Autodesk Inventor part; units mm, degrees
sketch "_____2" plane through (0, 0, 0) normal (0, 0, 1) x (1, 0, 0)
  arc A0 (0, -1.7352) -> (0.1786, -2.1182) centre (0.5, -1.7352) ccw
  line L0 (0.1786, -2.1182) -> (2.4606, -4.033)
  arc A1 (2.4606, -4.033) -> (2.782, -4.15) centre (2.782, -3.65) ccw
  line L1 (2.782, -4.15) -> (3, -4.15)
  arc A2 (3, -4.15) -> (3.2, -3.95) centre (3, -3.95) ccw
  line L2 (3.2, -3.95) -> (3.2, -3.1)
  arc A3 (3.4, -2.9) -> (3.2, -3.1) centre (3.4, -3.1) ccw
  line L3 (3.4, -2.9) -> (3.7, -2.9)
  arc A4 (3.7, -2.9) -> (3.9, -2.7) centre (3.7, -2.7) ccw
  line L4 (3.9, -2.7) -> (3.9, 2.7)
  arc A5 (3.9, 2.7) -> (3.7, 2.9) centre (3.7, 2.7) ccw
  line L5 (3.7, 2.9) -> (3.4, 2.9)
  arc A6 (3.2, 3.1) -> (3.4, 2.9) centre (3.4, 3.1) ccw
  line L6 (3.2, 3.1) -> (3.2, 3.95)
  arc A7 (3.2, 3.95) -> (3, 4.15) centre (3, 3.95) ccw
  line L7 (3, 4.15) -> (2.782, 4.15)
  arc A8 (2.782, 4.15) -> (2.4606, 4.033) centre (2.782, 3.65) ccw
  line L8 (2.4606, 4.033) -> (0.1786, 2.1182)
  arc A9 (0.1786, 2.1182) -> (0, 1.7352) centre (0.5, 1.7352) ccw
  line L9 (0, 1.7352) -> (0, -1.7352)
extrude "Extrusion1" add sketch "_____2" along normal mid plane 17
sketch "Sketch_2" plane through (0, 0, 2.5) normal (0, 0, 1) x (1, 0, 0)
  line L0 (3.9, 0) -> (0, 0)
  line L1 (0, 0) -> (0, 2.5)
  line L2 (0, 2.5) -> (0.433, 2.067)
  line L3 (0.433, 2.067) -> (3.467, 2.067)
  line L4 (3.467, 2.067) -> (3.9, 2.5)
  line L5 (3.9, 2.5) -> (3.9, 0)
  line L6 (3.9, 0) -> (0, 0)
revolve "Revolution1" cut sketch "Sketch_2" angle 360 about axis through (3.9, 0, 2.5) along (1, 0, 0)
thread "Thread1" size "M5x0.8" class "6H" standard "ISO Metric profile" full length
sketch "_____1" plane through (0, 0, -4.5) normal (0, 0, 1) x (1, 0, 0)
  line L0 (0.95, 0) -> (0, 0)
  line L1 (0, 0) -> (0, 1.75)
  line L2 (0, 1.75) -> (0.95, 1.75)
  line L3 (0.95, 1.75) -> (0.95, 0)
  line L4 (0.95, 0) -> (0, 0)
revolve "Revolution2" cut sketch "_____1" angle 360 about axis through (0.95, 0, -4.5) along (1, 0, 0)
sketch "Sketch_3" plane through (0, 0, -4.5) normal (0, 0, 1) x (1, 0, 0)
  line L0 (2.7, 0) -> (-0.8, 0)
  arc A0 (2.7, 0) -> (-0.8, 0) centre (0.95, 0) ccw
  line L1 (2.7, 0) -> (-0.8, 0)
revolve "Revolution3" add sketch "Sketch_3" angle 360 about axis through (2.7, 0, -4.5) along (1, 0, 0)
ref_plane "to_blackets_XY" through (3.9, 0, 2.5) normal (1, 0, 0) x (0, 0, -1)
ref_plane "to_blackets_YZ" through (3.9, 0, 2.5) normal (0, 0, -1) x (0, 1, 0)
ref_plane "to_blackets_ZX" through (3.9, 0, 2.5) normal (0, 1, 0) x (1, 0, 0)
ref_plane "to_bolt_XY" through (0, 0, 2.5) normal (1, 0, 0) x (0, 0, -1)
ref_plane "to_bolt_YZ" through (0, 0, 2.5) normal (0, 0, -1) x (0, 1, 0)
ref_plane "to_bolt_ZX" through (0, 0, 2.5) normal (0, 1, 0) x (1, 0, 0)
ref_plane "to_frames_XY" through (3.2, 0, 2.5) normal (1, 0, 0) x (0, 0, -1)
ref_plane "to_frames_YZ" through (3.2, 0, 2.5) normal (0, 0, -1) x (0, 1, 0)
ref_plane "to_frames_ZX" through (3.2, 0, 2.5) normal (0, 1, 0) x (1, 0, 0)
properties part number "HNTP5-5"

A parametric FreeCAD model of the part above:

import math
import FreeCAD as App
import Part
import Sketcher

V = App.Vector
Q = App.Units.Quantity

doc = App.newDocument("Part")
body = doc.addObject("PartDesign::Body", "Body")

sketch1 = body.newObject("Sketcher::SketchObject", "Sketch")
sketch1.AttachmentSupport = (doc.getObject("XY_Plane"), [""])
sketch1.MapMode = "FlatFace"
sketch1.addGeometry([
    Part.LineSegment(V(0, 1.7352, 0), V(0, -1.7352, 0)),
    Part.ArcOfCircle(Part.Circle(V(0.5, -1.7352, 0), V(0, 0, 1), 0.5), math.radians(180), math.radians(229.997819)),
    Part.LineSegment(V(0.1786, -2.1182, 0), V(2.4606, -4.033, 0)),
    Part.ArcOfCircle(Part.Circle(V(2.782, -3.65, 0), V(0, 0, 1), 0.499987), math.radians(-130.002181), math.radians(-90)),
    Part.LineSegment(V(2.782, -4.15, 0), V(3, -4.15, 0)),
    Part.ArcOfCircle(Part.Circle(V(3, -3.95, 0), V(0, 0, 1), 0.2), math.radians(-90), math.radians(0)),
    Part.LineSegment(V(3.2, -3.95, 0), V(3.2, -3.1, 0)),
    Part.ArcOfCircle(Part.Circle(V(3.4, -3.1, 0), V(0, 0, 1), 0.2), math.radians(90), math.radians(180)),
    Part.LineSegment(V(3.4, -2.9, 0), V(3.7, -2.9, 0)),
    Part.ArcOfCircle(Part.Circle(V(3.7, -2.7, 0), V(0, 0, 1), 0.2), math.radians(-90), math.radians(0)),
    Part.LineSegment(V(3.9, -2.7, 0), V(3.9, 2.7, 0)),
    Part.ArcOfCircle(Part.Circle(V(3.7, 2.7, 0), V(0, 0, 1), 0.2), math.radians(0), math.radians(90)),
    Part.LineSegment(V(3.7, 2.9, 0), V(3.4, 2.9, 0)),
    Part.ArcOfCircle(Part.Circle(V(3.4, 3.1, 0), V(0, 0, 1), 0.2), math.radians(180), math.radians(270)),
    Part.LineSegment(V(3.2, 3.1, 0), V(3.2, 3.95, 0)),
    Part.ArcOfCircle(Part.Circle(V(3, 3.95, 0), V(0, 0, 1), 0.2), math.radians(0), math.radians(90)),
    Part.LineSegment(V(3, 4.15, 0), V(2.782, 4.15, 0)),
    Part.ArcOfCircle(Part.Circle(V(2.782, 3.65, 0), V(0, 0, 1), 0.5), math.radians(90), math.radians(130.002181)),
    Part.LineSegment(V(2.4606, 4.033, 0), V(0.1786, 2.1182, 0)),
    Part.ArcOfCircle(Part.Circle(V(0.5, 1.7352, 0), V(0, 0, 1), 0.499987), math.radians(130.002181), math.radians(180)),
], False)
sketch1.addConstraint([
    Sketcher.Constraint("Tangent", 0, 2, 1, 1),
    Sketcher.Constraint("Tangent", 1, 2, 2, 1),
    Sketcher.Constraint("Tangent", 2, 2, 3, 1),
    Sketcher.Constraint("Tangent", 3, 2, 4, 1),
    Sketcher.Constraint("Tangent", 4, 2, 5, 1),
    Sketcher.Constraint("Tangent", 5, 2, 6, 1),
    Sketcher.Constraint("Tangent", 6, 2, 7, 2),
    Sketcher.Constraint("Tangent", 7, 1, 8, 1),
    Sketcher.Constraint("Tangent", 8, 2, 9, 1),
    Sketcher.Constraint("Tangent", 9, 2, 10, 1),
    Sketcher.Constraint("Tangent", 10, 2, 11, 1),
    Sketcher.Constraint("Tangent", 11, 2, 12, 1),
    Sketcher.Constraint("Tangent", 12, 2, 13, 2),
    Sketcher.Constraint("Tangent", 13, 1, 14, 1),
    Sketcher.Constraint("Tangent", 14, 2, 15, 1),
    Sketcher.Constraint("Tangent", 15, 2, 16, 1),
    Sketcher.Constraint("Tangent", 16, 2, 17, 1),
    Sketcher.Constraint("Tangent", 17, 2, 18, 1),
    Sketcher.Constraint("Tangent", 18, 2, 19, 1),
    Sketcher.Constraint("Tangent", 19, 2, 0, 1),
    Sketcher.Constraint("Vertical", 0),
    Sketcher.Constraint("Horizontal", 4),
    Sketcher.Constraint("Vertical", 6),
    Sketcher.Constraint("Horizontal", 8),
    Sketcher.Constraint("Vertical", 10),
    Sketcher.Constraint("Horizontal", 12),
    Sketcher.Constraint("Vertical", 14),
    Sketcher.Constraint("Horizontal", 16),
    Sketcher.Constraint("Equal", 1, 3),
    Sketcher.Constraint("Equal", 5, 7),
    Sketcher.Constraint("Equal", 7, 9),
    Sketcher.Constraint("Equal", 9, 11),
    Sketcher.Constraint("Equal", 11, 13),
    Sketcher.Constraint("Equal", 13, 15),
    Sketcher.Constraint("Equal", 3, 17),
    Sketcher.Constraint("Equal", 17, 19),
    Sketcher.Constraint("Symmetric", 0, 2, 19, 2, -1, 1),
    Sketcher.Constraint("Symmetric", 7, 3, 13, 3, -1),
    Sketcher.Constraint("Symmetric", 3, 3, 17, 3, -1),
    Sketcher.Constraint("Radius", 1, 0.5),
    Sketcher.Constraint("Radius", 5, 0.2),
    Sketcher.Constraint("Angle", 2, Q("-39.9996 deg")),
    Sketcher.Constraint("DistanceX", 8, 1, 8, 2, 0.3),
    Sketcher.Constraint("DistanceY", 10, 1, 10, 2, 5.4),
    Sketcher.Constraint("DistanceX", -1, 1, 5, 3, 3.0),
    Sketcher.Constraint("DistanceY", 6, 1, 6, 2, 0.85),
    Sketcher.Constraint("DistanceX", 4, 1, 4, 2, 0.218),
])
pad1 = body.newObject("PartDesign::Pad", "Pad")
pad1.Profile = sketch1
pad1.Length = 17
pad1.Midplane = True

sketch2 = body.newObject("Sketcher::SketchObject", "Sketch001")
sketch2.AttachmentSupport = (doc.getObject("XY_Plane"), [""])
sketch2.MapMode = "FlatFace"
sketch2.AttachmentOffset = App.Placement(V(0, 0, 2.5), App.Rotation())
sketch2.addGeometry([
    Part.LineSegment(V(0, 0, 0), V(3.9, 0, 0)),
    Part.LineSegment(V(3.9, 0, 0), V(3.9, 2.5, 0)),
    Part.LineSegment(V(3.9, 2.5, 0), V(3.467, 2.067, 0)),
    Part.LineSegment(V(3.467, 2.067, 0), V(0.433, 2.067, 0)),
    Part.LineSegment(V(0.433, 2.067, 0), V(0, 2.5, 0)),
    Part.LineSegment(V(0, 2.5, 0), V(0, 0, 0)),
], False)
sketch2.addConstraint([
    Sketcher.Constraint("Coincident", 0, 2, 1, 1),
    Sketcher.Constraint("Coincident", 1, 2, 2, 1),
    Sketcher.Constraint("Coincident", 2, 2, 3, 1),
    Sketcher.Constraint("Coincident", 3, 2, 4, 1),
    Sketcher.Constraint("Coincident", 4, 2, 5, 1),
    Sketcher.Constraint("Coincident", 5, 2, 0, 1),
    Sketcher.Constraint("Horizontal", 0),
    Sketcher.Constraint("Vertical", 1),
    Sketcher.Constraint("Horizontal", 3),
    Sketcher.Constraint("Vertical", 5),
    Sketcher.Constraint("Coincident", 5, 2, -1, 1),
    Sketcher.Constraint("Perpendicular", 2, 4),
    Sketcher.Constraint("Horizontal", 1, 2, 4, 2),
    Sketcher.Constraint("Equal", 2, 4),
    Sketcher.Constraint("DistanceX", 0, 1, 0, 2, 3.9),
    Sketcher.Constraint("DistanceY", 1, 1, 1, 2, 2.5),
    Sketcher.Constraint("DistanceX", 3, 2, 3, 1, 3.034),
])
groove = body.newObject("PartDesign::Groove", "Groove")
groove.Profile = sketch2
groove.ReferenceAxis = (sketch2, ["H_Axis"])
groove.Angle = 360

sketch3 = body.newObject("Sketcher::SketchObject", "Sketch002")
sketch3.AttachmentSupport = (doc.getObject("XY_Plane"), [""])
sketch3.MapMode = "FlatFace"
sketch3.AttachmentOffset = App.Placement(V(0, 0, -4.5), App.Rotation())
sketch3.addGeometry([
    Part.LineSegment(V(0, 0, 0), V(0.95, 0, 0)),
    Part.LineSegment(V(0.95, 0, 0), V(0.95, 1.75, 0)),
    Part.LineSegment(V(0.95, 1.75, 0), V(0, 1.75, 0)),
    Part.LineSegment(V(0, 1.75, 0), V(0, 0, 0)),
], False)
sketch3.addConstraint([
    Sketcher.Constraint("Coincident", 0, 2, 1, 1),
    Sketcher.Constraint("Coincident", 1, 2, 2, 1),
    Sketcher.Constraint("Coincident", 2, 2, 3, 1),
    Sketcher.Constraint("Coincident", 3, 2, 0, 1),
    Sketcher.Constraint("Horizontal", 0),
    Sketcher.Constraint("Vertical", 1),
    Sketcher.Constraint("Horizontal", 2),
    Sketcher.Constraint("Vertical", 3),
    Sketcher.Constraint("Coincident", 3, 2, -1, 1),
    Sketcher.Constraint("DistanceX", 0, 1, 0, 2, 0.95),
    Sketcher.Constraint("DistanceY", 1, 1, 1, 2, 1.75),
])
groove2 = body.newObject("PartDesign::Groove", "Groove001")
groove2.Profile = sketch3
groove2.ReferenceAxis = (sketch3, ["H_Axis"])
groove2.Angle = 360

sketch4 = body.newObject("Sketcher::SketchObject", "Sketch003")
sketch4.AttachmentSupport = (doc.getObject("XY_Plane"), [""])
sketch4.MapMode = "FlatFace"
sketch4.AttachmentOffset = App.Placement(V(0, 0, -4.5), App.Rotation())
sketch4.addGeometry([
    Part.LineSegment(V(-0.8, 0, 0), V(2.7, 0, 0)),
    Part.ArcOfCircle(Part.Circle(V(0.95, 0, 0), V(0, 0, 1), 1.75), math.radians(0), math.radians(180)),
], False)
sketch4.addConstraint([
    Sketcher.Constraint("Coincident", 0, 1, 1, 2),
    Sketcher.Constraint("Coincident", 1, 1, 0, 2),
    Sketcher.Constraint("Horizontal", 0),
    Sketcher.Constraint("PointOnObject", 1, 3, -1),
    Sketcher.Constraint("PointOnObject", 0, 1, -1),
    Sketcher.Constraint("Radius", 1, 1.75),
    Sketcher.Constraint("DistanceX", 0, 1, -1, 1, 0.8),
])
revolution = body.newObject("PartDesign::Revolution", "Revolution")
revolution.Profile = sketch4
revolution.ReferenceAxis = (sketch4, ["H_Axis"])
revolution.Angle = 360

doc.recompute()
